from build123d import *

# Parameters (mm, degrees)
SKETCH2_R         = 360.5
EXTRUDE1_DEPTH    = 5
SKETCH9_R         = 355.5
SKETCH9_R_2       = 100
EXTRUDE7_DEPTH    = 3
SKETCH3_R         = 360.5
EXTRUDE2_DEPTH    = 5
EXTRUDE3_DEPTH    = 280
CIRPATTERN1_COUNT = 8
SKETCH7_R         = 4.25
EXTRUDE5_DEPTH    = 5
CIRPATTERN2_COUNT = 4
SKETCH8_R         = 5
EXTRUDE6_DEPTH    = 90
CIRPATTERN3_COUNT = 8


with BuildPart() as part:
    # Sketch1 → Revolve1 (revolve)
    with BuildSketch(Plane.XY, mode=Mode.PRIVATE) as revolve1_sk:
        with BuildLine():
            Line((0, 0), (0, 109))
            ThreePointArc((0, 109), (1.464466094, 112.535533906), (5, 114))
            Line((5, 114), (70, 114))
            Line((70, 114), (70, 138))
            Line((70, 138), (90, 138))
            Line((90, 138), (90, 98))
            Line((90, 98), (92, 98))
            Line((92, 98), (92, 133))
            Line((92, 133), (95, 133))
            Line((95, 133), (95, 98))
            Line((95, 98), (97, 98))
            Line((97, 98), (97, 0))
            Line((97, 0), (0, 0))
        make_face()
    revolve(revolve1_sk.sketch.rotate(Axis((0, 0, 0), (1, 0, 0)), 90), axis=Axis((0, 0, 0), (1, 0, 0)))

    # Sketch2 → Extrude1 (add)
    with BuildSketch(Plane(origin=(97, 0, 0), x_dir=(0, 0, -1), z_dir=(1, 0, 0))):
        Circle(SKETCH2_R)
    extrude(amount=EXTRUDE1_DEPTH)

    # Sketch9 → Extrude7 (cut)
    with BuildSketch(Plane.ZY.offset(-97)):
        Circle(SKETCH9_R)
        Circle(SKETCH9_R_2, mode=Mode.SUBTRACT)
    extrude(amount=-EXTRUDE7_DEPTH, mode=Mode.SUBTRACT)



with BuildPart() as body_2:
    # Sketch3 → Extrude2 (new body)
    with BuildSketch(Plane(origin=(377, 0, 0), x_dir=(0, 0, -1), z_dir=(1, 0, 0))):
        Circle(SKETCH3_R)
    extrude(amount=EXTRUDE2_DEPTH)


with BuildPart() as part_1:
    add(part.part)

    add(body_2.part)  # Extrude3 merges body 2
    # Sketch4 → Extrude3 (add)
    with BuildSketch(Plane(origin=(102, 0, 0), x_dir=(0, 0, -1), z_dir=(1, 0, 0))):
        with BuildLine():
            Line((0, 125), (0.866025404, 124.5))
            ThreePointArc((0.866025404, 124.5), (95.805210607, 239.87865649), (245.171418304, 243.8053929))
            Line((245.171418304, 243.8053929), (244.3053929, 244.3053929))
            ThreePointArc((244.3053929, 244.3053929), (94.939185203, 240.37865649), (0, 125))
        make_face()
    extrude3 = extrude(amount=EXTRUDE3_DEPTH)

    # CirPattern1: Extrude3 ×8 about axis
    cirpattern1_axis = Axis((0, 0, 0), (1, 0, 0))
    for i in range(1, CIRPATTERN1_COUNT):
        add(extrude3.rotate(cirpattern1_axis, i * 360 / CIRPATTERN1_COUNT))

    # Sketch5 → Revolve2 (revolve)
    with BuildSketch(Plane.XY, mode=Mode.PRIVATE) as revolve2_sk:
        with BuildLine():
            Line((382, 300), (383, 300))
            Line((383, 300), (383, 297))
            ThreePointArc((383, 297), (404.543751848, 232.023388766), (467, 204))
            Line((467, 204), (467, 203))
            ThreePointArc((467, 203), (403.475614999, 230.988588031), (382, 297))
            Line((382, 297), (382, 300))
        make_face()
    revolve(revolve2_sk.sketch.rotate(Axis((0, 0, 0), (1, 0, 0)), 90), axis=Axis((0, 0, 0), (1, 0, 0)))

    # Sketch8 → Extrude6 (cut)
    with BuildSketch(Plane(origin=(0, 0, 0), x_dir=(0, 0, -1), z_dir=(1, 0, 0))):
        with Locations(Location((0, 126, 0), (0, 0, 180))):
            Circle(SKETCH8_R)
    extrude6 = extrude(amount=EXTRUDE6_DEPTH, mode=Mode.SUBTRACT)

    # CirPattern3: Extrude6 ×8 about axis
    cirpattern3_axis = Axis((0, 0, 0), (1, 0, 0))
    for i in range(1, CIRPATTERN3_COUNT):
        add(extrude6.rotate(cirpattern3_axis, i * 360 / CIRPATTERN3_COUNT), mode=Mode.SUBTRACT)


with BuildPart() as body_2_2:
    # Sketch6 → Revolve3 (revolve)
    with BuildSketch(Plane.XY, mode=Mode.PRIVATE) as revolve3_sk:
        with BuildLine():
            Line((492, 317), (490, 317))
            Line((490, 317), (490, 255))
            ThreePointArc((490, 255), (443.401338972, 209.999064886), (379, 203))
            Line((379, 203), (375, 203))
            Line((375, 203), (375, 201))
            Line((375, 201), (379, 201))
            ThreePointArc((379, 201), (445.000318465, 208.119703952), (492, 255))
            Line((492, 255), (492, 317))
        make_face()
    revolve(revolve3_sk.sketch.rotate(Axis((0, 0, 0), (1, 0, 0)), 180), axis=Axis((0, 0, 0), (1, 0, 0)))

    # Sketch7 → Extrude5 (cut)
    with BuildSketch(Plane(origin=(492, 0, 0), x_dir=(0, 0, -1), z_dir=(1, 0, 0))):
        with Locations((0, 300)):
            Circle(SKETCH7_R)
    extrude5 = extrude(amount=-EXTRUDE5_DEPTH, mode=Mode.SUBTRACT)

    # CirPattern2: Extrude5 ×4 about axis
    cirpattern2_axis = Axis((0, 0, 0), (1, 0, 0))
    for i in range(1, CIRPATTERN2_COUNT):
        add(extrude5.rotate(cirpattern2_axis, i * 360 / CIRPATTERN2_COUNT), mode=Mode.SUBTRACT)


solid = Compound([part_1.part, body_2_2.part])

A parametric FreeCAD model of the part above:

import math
import FreeCAD as App
import Part
import Sketcher
from FreeCAD import Vector
Q = App.Units.Quantity

doc = App.newDocument("Part")
body = doc.addObject("PartDesign::Body", "Body")

sketch1 = body.newObject("Sketcher::SketchObject", "Sketch")
sketch1.AttachmentSupport = (doc.getObject("XY_Plane"), [""])
sketch1.MapMode = "FlatFace"
sketch1.addGeometry(Part.LineSegment(Vector(0, 109, 0), Vector(0, 0, 0)), False)
sketch1.addGeometry(Part.LineSegment(Vector(0, 0, 0), Vector(97, 0, 0)), False)
sketch1.addGeometry(Part.LineSegment(Vector(97, 0, 0), Vector(97, 98, 0)), False)
sketch1.addGeometry(Part.LineSegment(Vector(97, 98, 0), Vector(95, 98, 0)), False)
sketch1.addGeometry(Part.LineSegment(Vector(95, 98, 0), Vector(95, 133, 0)), False)
sketch1.addGeometry(Part.LineSegment(Vector(95, 133, 0), Vector(92, 133, 0)), False)
sketch1.addGeometry(Part.LineSegment(Vector(92, 133, 0), Vector(92, 98, 0)), False)
sketch1.addGeometry(Part.LineSegment(Vector(92, 98, 0), Vector(90, 98, 0)), False)
sketch1.addGeometry(Part.LineSegment(Vector(90, 98, 0), Vector(90, 138, 0)), False)
sketch1.addGeometry(Part.LineSegment(Vector(90, 138, 0), Vector(70, 138, 0)), False)
sketch1.addGeometry(Part.LineSegment(Vector(70, 138, 0), Vector(70, 114, 0)), False)
sketch1.addGeometry(Part.LineSegment(Vector(70, 114, 0), Vector(5, 114, 0)), False)
sketch1.addGeometry(Part.ArcOfCircle(Part.Circle(Vector(5, 109, 0), Vector(0, 0, 1), 5), math.radians(90), math.radians(180)), False)
sketch1.addConstraint(Sketcher.Constraint("Coincident", 0, 2, 1, 1))
sketch1.addConstraint(Sketcher.Constraint("Coincident", 1, 2, 2, 1))
sketch1.addConstraint(Sketcher.Constraint("Coincident", 2, 2, 3, 1))
sketch1.addConstraint(Sketcher.Constraint("Coincident", 3, 2, 4, 1))
sketch1.addConstraint(Sketcher.Constraint("Coincident", 4, 2, 5, 1))
sketch1.addConstraint(Sketcher.Constraint("Coincident", 5, 2, 6, 1))
sketch1.addConstraint(Sketcher.Constraint("Coincident", 6, 2, 7, 1))
sketch1.addConstraint(Sketcher.Constraint("Coincident", 7, 2, 8, 1))
sketch1.addConstraint(Sketcher.Constraint("Coincident", 8, 2, 9, 1))
sketch1.addConstraint(Sketcher.Constraint("Coincident", 9, 2, 10, 1))
sketch1.addConstraint(Sketcher.Constraint("Coincident", 10, 2, 11, 1))
sketch1.addConstraint(Sketcher.Constraint("Tangent", 11, 2, 12, 1))
sketch1.addConstraint(Sketcher.Constraint("Tangent", 12, 2, 0, 1))
sketch1.addConstraint(Sketcher.Constraint("Vertical", 0))
sketch1.addConstraint(Sketcher.Constraint("Horizontal", 1))
sketch1.addConstraint(Sketcher.Constraint("Vertical", 2))
sketch1.addConstraint(Sketcher.Constraint("Horizontal", 3))
sketch1.addConstraint(Sketcher.Constraint("Vertical", 4))
sketch1.addConstraint(Sketcher.Constraint("Horizontal", 5))
sketch1.addConstraint(Sketcher.Constraint("Vertical", 6))
sketch1.addConstraint(Sketcher.Constraint("Horizontal", 7))
sketch1.addConstraint(Sketcher.Constraint("Vertical", 8))
sketch1.addConstraint(Sketcher.Constraint("Horizontal", 9))
sketch1.addConstraint(Sketcher.Constraint("Vertical", 10))
sketch1.addConstraint(Sketcher.Constraint("Horizontal", 11))
sketch1.addConstraint(Sketcher.Constraint("Coincident", 0, 2, -1, 1))
sketch1.addConstraint(Sketcher.Constraint("Horizontal", 3, 2, 6, 2))
sketch1.addConstraint(Sketcher.Constraint("Equal", 3, 7))
sketch1.addConstraint(Sketcher.Constraint("Radius", 12, 5.0))
sketch1.addConstraint(Sketcher.Constraint("DistanceX", 1, 1, 1, 2, 97.0))
sketch1.addConstraint(Sketcher.Constraint("DistanceX", 3, 2, 3, 1, 2.0))
sketch1.addConstraint(Sketcher.Constraint("DistanceX", 5, 2, 5, 1, 3.0))
sketch1.addConstraint(Sketcher.Constraint("DistanceX", 9, 2, 9, 1, 20.0))
sketch1.addConstraint(Sketcher.Constraint("DistanceY", 0, 2, 0, 1, 109.0))
sketch1.addConstraint(Sketcher.Constraint("DistanceY", 2, 1, 2, 2, 98.0))
sketch1.addConstraint(Sketcher.Constraint("DistanceY", 4, 1, 4, 2, 35.0))
sketch1.addConstraint(Sketcher.Constraint("DistanceY", 8, 1, 8, 2, 40.0))
revolution = body.newObject("PartDesign::Revolution", "Revolution")
revolution.Profile = sketch1
revolution.ReferenceAxis = (sketch1, ["H_Axis"])
revolution.Angle = 360

sketch2 = body.newObject("Sketcher::SketchObject", "Sketch001")
sketch2.AttachmentSupport = (doc.getObject("YZ_Plane"), [""])
sketch2.MapMode = "FlatFace"
sketch2.AttachmentOffset = App.Placement(Vector(0, 0, 97), App.Rotation())
sketch2.addGeometry(Part.Circle(Vector(0, 0, 0), Vector(0, 0, 1), 360), False)
sketch2.addConstraint(Sketcher.Constraint("Coincident", 0, 3, -1, 1))
sketch2.addConstraint(Sketcher.Constraint("Diameter", 0, 721.0))
pad1 = body.newObject("PartDesign::Pad", "Pad")
pad1.Profile = sketch2
pad1.Length = 5

sketch3 = body.newObject("Sketcher::SketchObject", "Sketch002")
sketch3.AttachmentSupport = (doc.getObject("YZ_Plane"), [""])
sketch3.MapMode = "FlatFace"
sketch3.AttachmentOffset = App.Placement(Vector(0, 0, 97), App.Rotation())
sketch3.addGeometry(Part.Circle(Vector(0, 0, 0), Vector(0, 0, 1), 356), False)
sketch3.addGeometry(Part.Circle(Vector(0, 0, 0), Vector(0, 0, 1), 100), False)
sketch3.addConstraint(Sketcher.Constraint("Coincident", 0, 3, -1, 1))
sketch3.addConstraint(Sketcher.Constraint("Coincident", 1, 3, -1, 1))
sketch3.addConstraint(Sketcher.Constraint("Diameter", 0, 711.0))
sketch3.addConstraint(Sketcher.Constraint("Diameter", 1, 200.0))
pocket1 = body.newObject("PartDesign::Pocket", "Pocket")
pocket1.Profile = sketch3
pocket1.Length = 3
pocket1.Reversed = True
body2 = doc.addObject("PartDesign::Body", "Body001")

sketch4 = body2.newObject("Sketcher::SketchObject", "Sketch003")
sketch4.AttachmentSupport = (doc.getObject("YZ_Plane001"), [""])
sketch4.MapMode = "FlatFace"
sketch4.AttachmentOffset = App.Placement(Vector(0, 0, 377), App.Rotation())
sketch4.addGeometry(Part.Circle(Vector(0, 0, 0), Vector(0, 0, 1), 360), False)
sketch4.addConstraint(Sketcher.Constraint("Coincident", 0, 3, -1, 1))
sketch4.addConstraint(Sketcher.Constraint("Diameter", 0, 721.0))
pad2 = body2.newObject("PartDesign::Pad", "Pad001")
pad2.Profile = sketch4
pad2.Length = 5
body.AllowCompound = True
doc.recompute()

boolean = body.newObject("PartDesign::Boolean", "Boolean")
boolean.Type = "Fuse"
boolean.addObjects([body2])

sketch5 = body.newObject("Sketcher::SketchObject", "Sketch004")
sketch5.AttachmentSupport = (doc.getObject("YZ_Plane"), [""])
sketch5.MapMode = "FlatFace"
sketch5.AttachmentOffset = App.Placement(Vector(0, 0, 102), App.Rotation())
sketch5.addGeometry(Part.LineSegment(Vector(125, 0, 0), Vector(124.5, -0.9, 0)), False)
sketch5.addGeometry(Part.ArcOfCircle(Part.Circle(Vector(78.1, -174.8, 0), Vector(0, 0, 1), 180), math.radians(-23), math.radians(75)), False)
sketch5.addGeometry(Part.LineSegment(Vector(243.8, -245.2, 0), Vector(244.3, -244.3, 0)), False)
sketch5.addGeometry(Part.ArcOfCircle(Part.Circle(Vector(78.6, -173.9, 0), Vector(0, 0, 1), 180), math.radians(-23), math.radians(75)), False)
sketch5.addConstraint(Sketcher.Constraint("Coincident", 0, 2, 1, 2))
sketch5.addConstraint(Sketcher.Constraint("Coincident", 1, 1, 2, 1))
sketch5.addConstraint(Sketcher.Constraint("Coincident", 2, 2, 3, 1))
sketch5.addConstraint(Sketcher.Constraint("Coincident", 3, 2, 0, 1))
sketch5.addConstraint(Sketcher.Constraint("Equal", 1, 3))
sketch5.addConstraint(Sketcher.Constraint("PointOnObject", 3, 2, -1))
sketch5.addConstraint(Sketcher.Constraint("Parallel", 0, 2))
sketch5.addConstraint(Sketcher.Constraint("Equal", 0, 2))
sketch5.addConstraint(Sketcher.Constraint("Radius", 1, 180.0))
sketch5.addConstraint(Sketcher.Constraint("Angle", 0, Q("-120 deg")))
sketch5.addConstraint(Sketcher.Constraint("Distance", 0, 1.0))
sketch5.addConstraint(Sketcher.Constraint("DistanceX", -1, 1, 3, 2, 125.0))
sketch5.addConstraint(Sketcher.Constraint("DistanceY", 3, 3, -1, 1, 173.926041))
sketch5.addConstraint(Sketcher.Constraint("DistanceY", 1, 1, -1, 1, 245.171418))
pad3 = body.newObject("PartDesign::Pad", "Pad002")
pad3.Profile = sketch5
pad3.Length = 280
doc.recompute()

polarpattern = body.newObject("PartDesign::PolarPattern", "PolarPattern")
polarpattern.Originals = [pad3]
polarpattern.Axis = (doc.getObject("X_Axis"), [""])
polarpattern.Angle = 360
polarpattern.Occurrences = 8
body.Tip = polarpattern

sketch6 = body.newObject("Sketcher::SketchObject", "Sketch005")
sketch6.AttachmentSupport = (doc.getObject("XY_Plane"), [""])
sketch6.MapMode = "FlatFace"
sketch6.addGeometry(Part.LineSegment(Vector(383, 300, 0), Vector(382, 300, 0)), False)
sketch6.addGeometry(Part.LineSegment(Vector(382, 300, 0), Vector(382, 297, 0)), False)
sketch6.addGeometry(Part.ArcOfCircle(Part.Circle(Vector(466.5, 288, 0), Vector(0, 0, 1), 85), math.radians(174), math.radians(270)), False)
sketch6.addGeometry(Part.LineSegment(Vector(467, 203, 0), Vector(467, 204, 0)), False)
sketch6.addGeometry(Part.ArcOfCircle(Part.Circle(Vector(467.6, 289, 0), Vector(0, 0, 1), 85), math.radians(175), math.radians(270)), False)
sketch6.addGeometry(Part.LineSegment(Vector(383, 297, 0), Vector(383, 300, 0)), False)
sketch6.addConstraint(Sketcher.Constraint("Coincident", 0, 2, 1, 1))
sketch6.addConstraint(Sketcher.Constraint("Coincident", 1, 2, 2, 1))
sketch6.addConstraint(Sketcher.Constraint("Coincident", 2, 2, 3, 1))
sketch6.addConstraint(Sketcher.Constraint("Coincident", 3, 2, 4, 2))
sketch6.addConstraint(Sketcher.Constraint("Coincident", 4, 1, 5, 1))
sketch6.addConstraint(Sketcher.Constraint("Coincident", 5, 2, 0, 1))
sketch6.addConstraint(Sketcher.Constraint("Horizontal", 0))
sketch6.addConstraint(Sketcher.Constraint("Vertical", 1))
sketch6.addConstraint(Sketcher.Constraint("Vertical", 3))
sketch6.addConstraint(Sketcher.Constraint("Vertical", 5))
sketch6.addConstraint(Sketcher.Constraint("Equal", 2, 4))
sketch6.addConstraint(Sketcher.Constraint("Horizontal", 1, 2, 4, 1))
sketch6.addConstraint(Sketcher.Constraint("Equal", 0, 3))
sketch6.addConstraint(Sketcher.Constraint("Radius", 2, 85.0))
sketch6.addConstraint(Sketcher.Constraint("DistanceX", 0, 2, 0, 1, 1.0))
sketch6.addConstraint(Sketcher.Constraint("DistanceY", 1, 2, 1, 1, 3.0))
sketch6.addConstraint(Sketcher.Constraint("DistanceX", -1, 1, 0, 2, 382.0))
sketch6.addConstraint(Sketcher.Constraint("DistanceY", -1, 1, 0, 2, 300.0))
sketch6.addConstraint(Sketcher.Constraint("DistanceX", -1, 1, 2, 2, 467.0))
sketch6.addConstraint(Sketcher.Constraint("DistanceY", -1, 1, 2, 2, 203.0))
revolution2 = body.newObject("PartDesign::Revolution", "Revolution001")
revolution2.Profile = sketch6
revolution2.ReferenceAxis = (sketch6, ["H_Axis"])
revolution2.Angle = 360

sketch7 = body.newObject("Sketcher::SketchObject", "Sketch006")
sketch7.AttachmentSupport = (doc.getObject("YZ_Plane"), [""])
sketch7.MapMode = "FlatFace"
sketch7.addGeometry(Part.Circle(Vector(126, 0, 0), Vector(0, 0, 1), 5), False)
sketch7.addConstraint(Sketcher.Constraint("PointOnObject", 0, 3, -1))
sketch7.addConstraint(Sketcher.Constraint("Diameter", 0, 10.0))
sketch7.addConstraint(Sketcher.Constraint("DistanceX", -1, 1, 0, 3, 126.0))
pocket2 = body.newObject("PartDesign::Pocket", "Pocket001")
pocket2.Profile = sketch7
pocket2.Length = 90
pocket2.Reversed = True
doc.recompute()

polarpattern2 = body.newObject("PartDesign::PolarPattern", "PolarPattern001")
polarpattern2.Originals = [pocket2]
polarpattern2.Axis = (doc.getObject("X_Axis"), [""])
polarpattern2.Angle = 360
polarpattern2.Occurrences = 8
body.Tip = polarpattern2
body3 = doc.addObject("PartDesign::Body", "Body002")

sketch8 = body3.newObject("Sketcher::SketchObject", "Sketch007")
sketch8.AttachmentSupport = (doc.getObject("XY_Plane002"), [""])
sketch8.MapMode = "FlatFace"
sketch8.addGeometry(Part.LineSegment(Vector(492, 317, 0), Vector(490, 317, 0)), False)
sketch8.addGeometry(Part.LineSegment(Vector(490, 317, 0), Vector(490, 255, 0)), False)
sketch8.addGeometry(Part.ArcOfCircle(Part.Circle(Vector(401, 300.6, 0), Vector(0, 0, 1), 100), math.radians(-103), math.radians(-27)), False)
sketch8.addGeometry(Part.LineSegment(Vector(379, 203, 0), Vector(375, 203, 0)), False)
sketch8.addGeometry(Part.LineSegment(Vector(375, 203, 0), Vector(375, 201, 0)), False)
sketch8.addGeometry(Part.LineSegment(Vector(375, 201, 0), Vector(379, 201, 0)), False)
sketch8.addGeometry(Part.ArcOfCircle(Part.Circle(Vector(401.9, 298.3, 0), Vector(0, 0, 1), 100), math.radians(-103), math.radians(-26)), False)
sketch8.addGeometry(Part.LineSegment(Vector(492, 255, 0), Vector(492, 317, 0)), False)
sketch8.addConstraint(Sketcher.Constraint("Coincident", 0, 2, 1, 1))
sketch8.addConstraint(Sketcher.Constraint("Coincident", 1, 2, 2, 2))
sketch8.addConstraint(Sketcher.Constraint("Coincident", 2, 1, 3, 1))
sketch8.addConstraint(Sketcher.Constraint("Coincident", 3, 2, 4, 1))
sketch8.addConstraint(Sketcher.Constraint("Coincident", 4, 2, 5, 1))
sketch8.addConstraint(Sketcher.Constraint("Coincident", 5, 2, 6, 1))
sketch8.addConstraint(Sketcher.Constraint("Coincident", 6, 2, 7, 1))
sketch8.addConstraint(Sketcher.Constraint("Coincident", 7, 2, 0, 1))
sketch8.addConstraint(Sketcher.Constraint("Horizontal", 0))
sketch8.addConstraint(Sketcher.Constraint("Vertical", 1))
sketch8.addConstraint(Sketcher.Constraint("Horizontal", 3))
sketch8.addConstraint(Sketcher.Constraint("Vertical", 4))
sketch8.addConstraint(Sketcher.Constraint("Horizontal", 5))
sketch8.addConstraint(Sketcher.Constraint("Vertical", 7))
sketch8.addConstraint(Sketcher.Constraint("Equal", 2, 6))
sketch8.addConstraint(Sketcher.Constraint("Horizontal", 1, 2, 6, 2))
sketch8.addConstraint(Sketcher.Constraint("Vertical", 2, 1, 5, 2))
sketch8.addConstraint(Sketcher.Constraint("Equal", 0, 4))
sketch8.addConstraint(Sketcher.Constraint("Radius", 2, 100.0))
sketch8.addConstraint(Sketcher.Constraint("DistanceX", 0, 2, 0, 1, 2.0))
sketch8.addConstraint(Sketcher.Constraint("DistanceX", 3, 2, 3, 1, 4.0))
sketch8.addConstraint(Sketcher.Constraint("DistanceY", 1, 2, 1, 1, 62.0))
sketch8.addConstraint(Sketcher.Constraint("DistanceX", -1, 1, 0, 2, 490.0))
sketch8.addConstraint(Sketcher.Constraint("DistanceY", -1, 1, 0, 2, 317.0))
sketch8.addConstraint(Sketcher.Constraint("DistanceX", -1, 1, 2, 1, 379.0))
sketch8.addConstraint(Sketcher.Constraint("DistanceY", -1, 1, 2, 1, 203.0))
revolution3 = body3.newObject("PartDesign::Revolution", "Revolution002")
revolution3.Profile = sketch8
revolution3.ReferenceAxis = (sketch8, ["H_Axis"])
revolution3.Angle = 360

sketch9 = body3.newObject("Sketcher::SketchObject", "Sketch008")
sketch9.AttachmentSupport = (doc.getObject("YZ_Plane002"), [""])
sketch9.MapMode = "FlatFace"
sketch9.AttachmentOffset = App.Placement(Vector(0, 0, 492), App.Rotation())
sketch9.addGeometry(Part.Circle(Vector(300, 0, 0), Vector(0, 0, 1), 4.2), False)
sketch9.addConstraint(Sketcher.Constraint("PointOnObject", 0, 3, -1))
sketch9.addConstraint(Sketcher.Constraint("Diameter", 0, 8.5))
sketch9.addConstraint(Sketcher.Constraint("DistanceX", -1, 1, 0, 3, 300.0))
pocket3 = body3.newObject("PartDesign::Pocket", "Pocket002")
pocket3.Profile = sketch9
pocket3.Length = 5
doc.recompute()

polarpattern3 = body3.newObject("PartDesign::PolarPattern", "PolarPattern002")
polarpattern3.Originals = [pocket3]
polarpattern3.Axis = (doc.getObject("X_Axis002"), [""])
polarpattern3.Angle = 360
polarpattern3.Occurrences = 4
body3.Tip = polarpattern3

doc.recompute()
